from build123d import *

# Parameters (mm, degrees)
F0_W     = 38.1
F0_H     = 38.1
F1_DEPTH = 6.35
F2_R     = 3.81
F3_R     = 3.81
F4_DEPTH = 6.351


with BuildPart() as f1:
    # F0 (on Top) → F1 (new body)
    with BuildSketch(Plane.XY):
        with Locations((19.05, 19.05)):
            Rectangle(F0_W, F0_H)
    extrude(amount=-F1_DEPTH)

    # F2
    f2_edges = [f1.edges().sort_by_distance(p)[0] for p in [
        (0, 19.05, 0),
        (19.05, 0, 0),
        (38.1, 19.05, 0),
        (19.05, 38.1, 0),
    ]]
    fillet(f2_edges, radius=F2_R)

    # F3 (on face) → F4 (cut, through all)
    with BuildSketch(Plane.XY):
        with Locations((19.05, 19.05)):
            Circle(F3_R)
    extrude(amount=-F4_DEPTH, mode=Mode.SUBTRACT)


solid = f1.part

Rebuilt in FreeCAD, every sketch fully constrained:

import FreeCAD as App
import Part
import Sketcher
Q = App.Units.Quantity


def edges_at(feature, points):
    """Names of the edges that pass closest to the given points."""
    edges = feature.Shape.Edges
    near = lambda p: min(range(len(edges)), key=lambda i: edges[i].distToShape(Part.Vertex(*p))[0])
    return sorted({f"Edge{near(p) + 1}" for p in points})


def add_polygon(sketch, points):
    """Adds a closed chain of lines whose ends are joined by coincident constraints."""
    first, n = sketch.GeometryCount, len(points)
    for a, b in zip(points, points[1:] + points[:1]):
        sketch.addGeometry(Part.LineSegment(App.Vector(*a, 0), App.Vector(*b, 0)), False)
    for i in range(n):
        sketch.addConstraint(Sketcher.Constraint("Coincident", first + i, 2, first + (i + 1) % n, 1))

doc = App.newDocument("Part")
body = doc.addObject("PartDesign::Body", "Body")

# Sketch on XY plane
sketch1 = body.newObject("Sketcher::SketchObject", "Sketch")
sketch1.AttachmentSupport = (doc.getObject("XY_Plane"), [""])
sketch1.MapMode = "FlatFace"
add_polygon(sketch1, [(0, 38), (0, 0), (38, 0), (38, 38)])  # lines 0-3
sketch1.addConstraint([
    Sketcher.Constraint("Vertical", 0),
    Sketcher.Constraint("Horizontal", 1),
    Sketcher.Constraint("Vertical", 2),
    Sketcher.Constraint("Horizontal", 3),
    Sketcher.Constraint("Coincident", 0, 2, -1, 1),
    Sketcher.Constraint("Equal", 3, 0),
    Sketcher.Constraint("DistanceX", 1, 1, 1, 2, Q("1.5 in")),
])
pad1 = body.newObject("PartDesign::Pad", "Pad")
pad1.Profile = sketch1
pad1.Length = Q("0.25 in")
pad1.Reversed = True
doc.recompute()

fillet = body.newObject("PartDesign::Fillet", "Fillet")
fillet.Base = (pad1, edges_at(pad1, [
    (0, 19.05, 0),
    (19.05, 0, 0),
    (38.1, 19.05, 0),
    (19.05, 38.1, 0),
]))
fillet.Radius = Q("0.15 in")

# Sketch on XY plane
sketch2 = body.newObject("Sketcher::SketchObject", "Sketch001")
sketch2.AttachmentSupport = (doc.getObject("XY_Plane"), [""])
sketch2.MapMode = "FlatFace"
sketch2.addGeometry(Part.Circle(App.Vector(19.1, 19.1, 0), App.Vector(0, 0, 1), 3.8), False)
sketch2.addConstraint([
    Sketcher.Constraint("Diameter", 0, Q("0.3 in")),
    Sketcher.Constraint("DistanceX", -1, 1, 0, 3, Q("0.75 in")),
    Sketcher.Constraint("DistanceY", -1, 1, 0, 3, Q("0.75 in")),
])
pocket1 = body.newObject("PartDesign::Pocket", "Pocket")
pocket1.Profile = sketch2
pocket1.Type = "ThroughAll"

doc.recompute()
